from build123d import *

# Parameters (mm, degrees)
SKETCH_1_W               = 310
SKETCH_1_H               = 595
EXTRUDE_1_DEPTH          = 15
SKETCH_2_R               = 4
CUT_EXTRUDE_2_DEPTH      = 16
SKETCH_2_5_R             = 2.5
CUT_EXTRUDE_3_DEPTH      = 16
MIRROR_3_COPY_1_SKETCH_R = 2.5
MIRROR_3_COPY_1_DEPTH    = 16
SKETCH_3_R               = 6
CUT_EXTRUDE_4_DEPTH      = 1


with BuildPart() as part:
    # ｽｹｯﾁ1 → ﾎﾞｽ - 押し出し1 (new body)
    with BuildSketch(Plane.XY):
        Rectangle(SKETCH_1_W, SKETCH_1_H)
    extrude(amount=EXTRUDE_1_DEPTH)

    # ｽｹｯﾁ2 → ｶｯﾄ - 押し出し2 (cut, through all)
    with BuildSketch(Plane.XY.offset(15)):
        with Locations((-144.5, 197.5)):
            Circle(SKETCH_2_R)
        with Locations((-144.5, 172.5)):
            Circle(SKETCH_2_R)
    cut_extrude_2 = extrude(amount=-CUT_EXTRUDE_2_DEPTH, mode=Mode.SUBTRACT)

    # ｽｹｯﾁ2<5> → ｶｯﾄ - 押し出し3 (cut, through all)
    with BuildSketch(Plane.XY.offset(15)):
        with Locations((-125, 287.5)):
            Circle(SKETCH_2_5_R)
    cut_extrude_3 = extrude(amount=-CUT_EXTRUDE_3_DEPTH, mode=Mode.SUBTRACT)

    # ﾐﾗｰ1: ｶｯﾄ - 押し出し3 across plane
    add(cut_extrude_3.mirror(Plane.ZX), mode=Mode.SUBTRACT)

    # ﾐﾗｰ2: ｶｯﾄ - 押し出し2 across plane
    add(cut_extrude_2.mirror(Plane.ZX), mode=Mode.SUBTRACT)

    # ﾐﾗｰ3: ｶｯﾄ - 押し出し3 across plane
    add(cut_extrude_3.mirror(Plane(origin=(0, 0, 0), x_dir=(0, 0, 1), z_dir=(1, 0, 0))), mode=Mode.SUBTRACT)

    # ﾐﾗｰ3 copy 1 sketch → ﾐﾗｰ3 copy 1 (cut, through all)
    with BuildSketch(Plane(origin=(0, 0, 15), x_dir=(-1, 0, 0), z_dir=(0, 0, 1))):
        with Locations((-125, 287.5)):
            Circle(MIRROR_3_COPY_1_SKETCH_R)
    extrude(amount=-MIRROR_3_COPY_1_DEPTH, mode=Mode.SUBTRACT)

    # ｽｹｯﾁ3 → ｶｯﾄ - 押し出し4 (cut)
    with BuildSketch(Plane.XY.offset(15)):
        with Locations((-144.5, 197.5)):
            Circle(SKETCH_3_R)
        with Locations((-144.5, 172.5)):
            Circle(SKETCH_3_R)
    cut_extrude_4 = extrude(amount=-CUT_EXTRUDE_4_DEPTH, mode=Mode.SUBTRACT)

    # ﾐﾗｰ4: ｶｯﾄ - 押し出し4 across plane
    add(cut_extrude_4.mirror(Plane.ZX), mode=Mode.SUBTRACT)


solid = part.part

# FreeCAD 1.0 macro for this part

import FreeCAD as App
import Part
import Sketcher
from FreeCAD import Vector

doc = App.newDocument("Part")
body = doc.addObject("PartDesign::Body", "Body")

# Sketch on XY plane
sketch1 = doc.addObject("Sketcher::SketchObject", "Sketch")
body.addObject(sketch1)
sketch1.AttachmentSupport = (doc.XY_Plane, [""])
sketch1.MapMode = "FlatFace"
sketch1.addGeometry([
    Part.LineSegment(Vector(-155, 298, 0), Vector(-155, -298, 0)),
    Part.LineSegment(Vector(-155, -298, 0), Vector(155, -298, 0)),
    Part.LineSegment(Vector(155, -298, 0), Vector(155, 298, 0)),
    Part.LineSegment(Vector(155, 298, 0), Vector(-155, 298, 0)),
], False)
sketch1.addConstraint([
    Sketcher.Constraint("Coincident", 0, 2, 1, 1),
    Sketcher.Constraint("Coincident", 1, 2, 2, 1),
    Sketcher.Constraint("Coincident", 2, 2, 3, 1),
    Sketcher.Constraint("Coincident", 3, 2, 0, 1),
    Sketcher.Constraint("Vertical", 0),
    Sketcher.Constraint("Horizontal", 1),
    Sketcher.Constraint("Vertical", 2),
    Sketcher.Constraint("Horizontal", 3),
    Sketcher.Constraint("Symmetric", 0, 2, 2, 2, -1, 1),
    Sketcher.Constraint("DistanceX", 1, 1, 1, 2, 310.0),
    Sketcher.Constraint("DistanceY", 0, 2, 0, 1, 595.0),
])
pad1 = doc.addObject("PartDesign::Pad", "Pad")
body.addObject(pad1)
pad1.Profile = sketch1
pad1.Length = 15

# Sketch on XY plane
sketch2 = doc.addObject("Sketcher::SketchObject", "Sketch001")
body.addObject(sketch2)
sketch2.AttachmentSupport = (doc.XY_Plane, [""])
sketch2.MapMode = "FlatFace"
sketch2.AttachmentOffset = App.Placement(Vector(0, 0, 15), App.Rotation())
sketch2.addGeometry([
    Part.Circle(Vector(-144.5, 197.5, 0), Vector(0, 0, 1), 4),
    Part.Circle(Vector(-144.5, 172.5, 0), Vector(0, 0, 1), 4),
], False)
sketch2.addConstraint([
    Sketcher.Constraint("Equal", 0, 1),
    Sketcher.Constraint("Vertical", 0, 3, 1, 3),
    Sketcher.Constraint("Diameter", 0, 8.0),
    Sketcher.Constraint("DistanceY", 1, 3, 0, 3, 25.0),
    Sketcher.Constraint("DistanceX", 0, 3, -1, 1, 144.5),
    Sketcher.Constraint("DistanceY", -1, 1, 0, 3, 197.5),
])
pocket1 = doc.addObject("PartDesign::Pocket", "Pocket")
body.addObject(pocket1)
pocket1.Profile = sketch2
pocket1.Type = "ThroughAll"

# Sketch on XY plane
sketch3 = doc.addObject("Sketcher::SketchObject", "Sketch002")
body.addObject(sketch3)
sketch3.AttachmentSupport = (doc.XY_Plane, [""])
sketch3.MapMode = "FlatFace"
sketch3.AttachmentOffset = App.Placement(Vector(0, 0, 15), App.Rotation())
sketch3.addGeometry(Part.Circle(Vector(-125, 287.5, 0), Vector(0, 0, 1), 2.5), False)
sketch3.addConstraint([
    Sketcher.Constraint("Diameter", 0, 5.0),
    Sketcher.Constraint("DistanceX", 0, 3, -1, 1, 125.0),
    Sketcher.Constraint("DistanceY", -1, 1, 0, 3, 287.5),
])
pocket2 = doc.addObject("PartDesign::Pocket", "Pocket001")
body.addObject(pocket2)
pocket2.Profile = sketch3
pocket2.Type = "ThroughAll"
doc.recompute()

mirrored = doc.addObject("PartDesign::Mirrored", "Mirrored")
body.addObject(mirrored)
mirrored.Originals = [pocket2]
mirrored.MirrorPlane = (doc.XZ_Plane, [""])
body.Tip = mirrored
doc.recompute()

mirrored2 = doc.addObject("PartDesign::Mirrored", "Mirrored001")
body.addObject(mirrored2)
mirrored2.Originals = [pocket1]
mirrored2.MirrorPlane = (doc.XZ_Plane, [""])
body.Tip = mirrored2
doc.recompute()

mirrored3 = doc.addObject("PartDesign::Mirrored", "Mirrored002")
body.addObject(mirrored3)
mirrored3.Originals = [pocket2]
mirrored3.MirrorPlane = (doc.YZ_Plane, [""])
body.Tip = mirrored3

# Sketch on XY plane
sketch4 = doc.addObject("Sketcher::SketchObject", "Sketch003")
body.addObject(sketch4)
sketch4.AttachmentSupport = (doc.XY_Plane, [""])
sketch4.MapMode = "FlatFace"
sketch4.AttachmentOffset = App.Placement(Vector(0, 0, 15), App.Rotation())
sketch4.addGeometry(Part.Circle(Vector(125, -287.5, 0), Vector(0, 0, 1), 2.5), False)
sketch4.addConstraint([
    Sketcher.Constraint("Diameter", 0, 5.0),
    Sketcher.Constraint("DistanceX", -1, 1, 0, 3, 125.0),
    Sketcher.Constraint("DistanceY", 0, 3, -1, 1, 287.5),
])
pocket3 = doc.addObject("PartDesign::Pocket", "Pocket002")
body.addObject(pocket3)
pocket3.Profile = sketch4
pocket3.Type = "ThroughAll"

# Sketch on XY plane
sketch5 = doc.addObject("Sketcher::SketchObject", "Sketch004")
body.addObject(sketch5)
sketch5.AttachmentSupport = (doc.XY_Plane, [""])
sketch5.MapMode = "FlatFace"
sketch5.AttachmentOffset = App.Placement(Vector(0, 0, 15), App.Rotation())
sketch5.addGeometry([
    Part.Circle(Vector(-144, 198, 0), Vector(0, 0, 1), 6),
    Part.Circle(Vector(-144, 172, 0), Vector(0, 0, 1), 6),
], False)
sketch5.addConstraint([
    Sketcher.Constraint("Equal", 0, 1),
    Sketcher.Constraint("Vertical", 0, 3, 1, 3),
    Sketcher.Constraint("Diameter", 0, 12.0),
    Sketcher.Constraint("DistanceY", 1, 3, 0, 3, 25.0),
    Sketcher.Constraint("DistanceX", 0, 3, -1, 1, 144.5),
    Sketcher.Constraint("DistanceY", -1, 1, 0, 3, 197.5),
])
pocket4 = doc.addObject("PartDesign::Pocket", "Pocket003")
body.addObject(pocket4)
pocket4.Profile = sketch5
pocket4.Length = 1
doc.recompute()

mirrored4 = doc.addObject("PartDesign::Mirrored", "Mirrored003")
body.addObject(mirrored4)
mirrored4.Originals = [pocket4]
mirrored4.MirrorPlane = (doc.XZ_Plane, [""])
body.Tip = mirrored4

doc.recompute()
